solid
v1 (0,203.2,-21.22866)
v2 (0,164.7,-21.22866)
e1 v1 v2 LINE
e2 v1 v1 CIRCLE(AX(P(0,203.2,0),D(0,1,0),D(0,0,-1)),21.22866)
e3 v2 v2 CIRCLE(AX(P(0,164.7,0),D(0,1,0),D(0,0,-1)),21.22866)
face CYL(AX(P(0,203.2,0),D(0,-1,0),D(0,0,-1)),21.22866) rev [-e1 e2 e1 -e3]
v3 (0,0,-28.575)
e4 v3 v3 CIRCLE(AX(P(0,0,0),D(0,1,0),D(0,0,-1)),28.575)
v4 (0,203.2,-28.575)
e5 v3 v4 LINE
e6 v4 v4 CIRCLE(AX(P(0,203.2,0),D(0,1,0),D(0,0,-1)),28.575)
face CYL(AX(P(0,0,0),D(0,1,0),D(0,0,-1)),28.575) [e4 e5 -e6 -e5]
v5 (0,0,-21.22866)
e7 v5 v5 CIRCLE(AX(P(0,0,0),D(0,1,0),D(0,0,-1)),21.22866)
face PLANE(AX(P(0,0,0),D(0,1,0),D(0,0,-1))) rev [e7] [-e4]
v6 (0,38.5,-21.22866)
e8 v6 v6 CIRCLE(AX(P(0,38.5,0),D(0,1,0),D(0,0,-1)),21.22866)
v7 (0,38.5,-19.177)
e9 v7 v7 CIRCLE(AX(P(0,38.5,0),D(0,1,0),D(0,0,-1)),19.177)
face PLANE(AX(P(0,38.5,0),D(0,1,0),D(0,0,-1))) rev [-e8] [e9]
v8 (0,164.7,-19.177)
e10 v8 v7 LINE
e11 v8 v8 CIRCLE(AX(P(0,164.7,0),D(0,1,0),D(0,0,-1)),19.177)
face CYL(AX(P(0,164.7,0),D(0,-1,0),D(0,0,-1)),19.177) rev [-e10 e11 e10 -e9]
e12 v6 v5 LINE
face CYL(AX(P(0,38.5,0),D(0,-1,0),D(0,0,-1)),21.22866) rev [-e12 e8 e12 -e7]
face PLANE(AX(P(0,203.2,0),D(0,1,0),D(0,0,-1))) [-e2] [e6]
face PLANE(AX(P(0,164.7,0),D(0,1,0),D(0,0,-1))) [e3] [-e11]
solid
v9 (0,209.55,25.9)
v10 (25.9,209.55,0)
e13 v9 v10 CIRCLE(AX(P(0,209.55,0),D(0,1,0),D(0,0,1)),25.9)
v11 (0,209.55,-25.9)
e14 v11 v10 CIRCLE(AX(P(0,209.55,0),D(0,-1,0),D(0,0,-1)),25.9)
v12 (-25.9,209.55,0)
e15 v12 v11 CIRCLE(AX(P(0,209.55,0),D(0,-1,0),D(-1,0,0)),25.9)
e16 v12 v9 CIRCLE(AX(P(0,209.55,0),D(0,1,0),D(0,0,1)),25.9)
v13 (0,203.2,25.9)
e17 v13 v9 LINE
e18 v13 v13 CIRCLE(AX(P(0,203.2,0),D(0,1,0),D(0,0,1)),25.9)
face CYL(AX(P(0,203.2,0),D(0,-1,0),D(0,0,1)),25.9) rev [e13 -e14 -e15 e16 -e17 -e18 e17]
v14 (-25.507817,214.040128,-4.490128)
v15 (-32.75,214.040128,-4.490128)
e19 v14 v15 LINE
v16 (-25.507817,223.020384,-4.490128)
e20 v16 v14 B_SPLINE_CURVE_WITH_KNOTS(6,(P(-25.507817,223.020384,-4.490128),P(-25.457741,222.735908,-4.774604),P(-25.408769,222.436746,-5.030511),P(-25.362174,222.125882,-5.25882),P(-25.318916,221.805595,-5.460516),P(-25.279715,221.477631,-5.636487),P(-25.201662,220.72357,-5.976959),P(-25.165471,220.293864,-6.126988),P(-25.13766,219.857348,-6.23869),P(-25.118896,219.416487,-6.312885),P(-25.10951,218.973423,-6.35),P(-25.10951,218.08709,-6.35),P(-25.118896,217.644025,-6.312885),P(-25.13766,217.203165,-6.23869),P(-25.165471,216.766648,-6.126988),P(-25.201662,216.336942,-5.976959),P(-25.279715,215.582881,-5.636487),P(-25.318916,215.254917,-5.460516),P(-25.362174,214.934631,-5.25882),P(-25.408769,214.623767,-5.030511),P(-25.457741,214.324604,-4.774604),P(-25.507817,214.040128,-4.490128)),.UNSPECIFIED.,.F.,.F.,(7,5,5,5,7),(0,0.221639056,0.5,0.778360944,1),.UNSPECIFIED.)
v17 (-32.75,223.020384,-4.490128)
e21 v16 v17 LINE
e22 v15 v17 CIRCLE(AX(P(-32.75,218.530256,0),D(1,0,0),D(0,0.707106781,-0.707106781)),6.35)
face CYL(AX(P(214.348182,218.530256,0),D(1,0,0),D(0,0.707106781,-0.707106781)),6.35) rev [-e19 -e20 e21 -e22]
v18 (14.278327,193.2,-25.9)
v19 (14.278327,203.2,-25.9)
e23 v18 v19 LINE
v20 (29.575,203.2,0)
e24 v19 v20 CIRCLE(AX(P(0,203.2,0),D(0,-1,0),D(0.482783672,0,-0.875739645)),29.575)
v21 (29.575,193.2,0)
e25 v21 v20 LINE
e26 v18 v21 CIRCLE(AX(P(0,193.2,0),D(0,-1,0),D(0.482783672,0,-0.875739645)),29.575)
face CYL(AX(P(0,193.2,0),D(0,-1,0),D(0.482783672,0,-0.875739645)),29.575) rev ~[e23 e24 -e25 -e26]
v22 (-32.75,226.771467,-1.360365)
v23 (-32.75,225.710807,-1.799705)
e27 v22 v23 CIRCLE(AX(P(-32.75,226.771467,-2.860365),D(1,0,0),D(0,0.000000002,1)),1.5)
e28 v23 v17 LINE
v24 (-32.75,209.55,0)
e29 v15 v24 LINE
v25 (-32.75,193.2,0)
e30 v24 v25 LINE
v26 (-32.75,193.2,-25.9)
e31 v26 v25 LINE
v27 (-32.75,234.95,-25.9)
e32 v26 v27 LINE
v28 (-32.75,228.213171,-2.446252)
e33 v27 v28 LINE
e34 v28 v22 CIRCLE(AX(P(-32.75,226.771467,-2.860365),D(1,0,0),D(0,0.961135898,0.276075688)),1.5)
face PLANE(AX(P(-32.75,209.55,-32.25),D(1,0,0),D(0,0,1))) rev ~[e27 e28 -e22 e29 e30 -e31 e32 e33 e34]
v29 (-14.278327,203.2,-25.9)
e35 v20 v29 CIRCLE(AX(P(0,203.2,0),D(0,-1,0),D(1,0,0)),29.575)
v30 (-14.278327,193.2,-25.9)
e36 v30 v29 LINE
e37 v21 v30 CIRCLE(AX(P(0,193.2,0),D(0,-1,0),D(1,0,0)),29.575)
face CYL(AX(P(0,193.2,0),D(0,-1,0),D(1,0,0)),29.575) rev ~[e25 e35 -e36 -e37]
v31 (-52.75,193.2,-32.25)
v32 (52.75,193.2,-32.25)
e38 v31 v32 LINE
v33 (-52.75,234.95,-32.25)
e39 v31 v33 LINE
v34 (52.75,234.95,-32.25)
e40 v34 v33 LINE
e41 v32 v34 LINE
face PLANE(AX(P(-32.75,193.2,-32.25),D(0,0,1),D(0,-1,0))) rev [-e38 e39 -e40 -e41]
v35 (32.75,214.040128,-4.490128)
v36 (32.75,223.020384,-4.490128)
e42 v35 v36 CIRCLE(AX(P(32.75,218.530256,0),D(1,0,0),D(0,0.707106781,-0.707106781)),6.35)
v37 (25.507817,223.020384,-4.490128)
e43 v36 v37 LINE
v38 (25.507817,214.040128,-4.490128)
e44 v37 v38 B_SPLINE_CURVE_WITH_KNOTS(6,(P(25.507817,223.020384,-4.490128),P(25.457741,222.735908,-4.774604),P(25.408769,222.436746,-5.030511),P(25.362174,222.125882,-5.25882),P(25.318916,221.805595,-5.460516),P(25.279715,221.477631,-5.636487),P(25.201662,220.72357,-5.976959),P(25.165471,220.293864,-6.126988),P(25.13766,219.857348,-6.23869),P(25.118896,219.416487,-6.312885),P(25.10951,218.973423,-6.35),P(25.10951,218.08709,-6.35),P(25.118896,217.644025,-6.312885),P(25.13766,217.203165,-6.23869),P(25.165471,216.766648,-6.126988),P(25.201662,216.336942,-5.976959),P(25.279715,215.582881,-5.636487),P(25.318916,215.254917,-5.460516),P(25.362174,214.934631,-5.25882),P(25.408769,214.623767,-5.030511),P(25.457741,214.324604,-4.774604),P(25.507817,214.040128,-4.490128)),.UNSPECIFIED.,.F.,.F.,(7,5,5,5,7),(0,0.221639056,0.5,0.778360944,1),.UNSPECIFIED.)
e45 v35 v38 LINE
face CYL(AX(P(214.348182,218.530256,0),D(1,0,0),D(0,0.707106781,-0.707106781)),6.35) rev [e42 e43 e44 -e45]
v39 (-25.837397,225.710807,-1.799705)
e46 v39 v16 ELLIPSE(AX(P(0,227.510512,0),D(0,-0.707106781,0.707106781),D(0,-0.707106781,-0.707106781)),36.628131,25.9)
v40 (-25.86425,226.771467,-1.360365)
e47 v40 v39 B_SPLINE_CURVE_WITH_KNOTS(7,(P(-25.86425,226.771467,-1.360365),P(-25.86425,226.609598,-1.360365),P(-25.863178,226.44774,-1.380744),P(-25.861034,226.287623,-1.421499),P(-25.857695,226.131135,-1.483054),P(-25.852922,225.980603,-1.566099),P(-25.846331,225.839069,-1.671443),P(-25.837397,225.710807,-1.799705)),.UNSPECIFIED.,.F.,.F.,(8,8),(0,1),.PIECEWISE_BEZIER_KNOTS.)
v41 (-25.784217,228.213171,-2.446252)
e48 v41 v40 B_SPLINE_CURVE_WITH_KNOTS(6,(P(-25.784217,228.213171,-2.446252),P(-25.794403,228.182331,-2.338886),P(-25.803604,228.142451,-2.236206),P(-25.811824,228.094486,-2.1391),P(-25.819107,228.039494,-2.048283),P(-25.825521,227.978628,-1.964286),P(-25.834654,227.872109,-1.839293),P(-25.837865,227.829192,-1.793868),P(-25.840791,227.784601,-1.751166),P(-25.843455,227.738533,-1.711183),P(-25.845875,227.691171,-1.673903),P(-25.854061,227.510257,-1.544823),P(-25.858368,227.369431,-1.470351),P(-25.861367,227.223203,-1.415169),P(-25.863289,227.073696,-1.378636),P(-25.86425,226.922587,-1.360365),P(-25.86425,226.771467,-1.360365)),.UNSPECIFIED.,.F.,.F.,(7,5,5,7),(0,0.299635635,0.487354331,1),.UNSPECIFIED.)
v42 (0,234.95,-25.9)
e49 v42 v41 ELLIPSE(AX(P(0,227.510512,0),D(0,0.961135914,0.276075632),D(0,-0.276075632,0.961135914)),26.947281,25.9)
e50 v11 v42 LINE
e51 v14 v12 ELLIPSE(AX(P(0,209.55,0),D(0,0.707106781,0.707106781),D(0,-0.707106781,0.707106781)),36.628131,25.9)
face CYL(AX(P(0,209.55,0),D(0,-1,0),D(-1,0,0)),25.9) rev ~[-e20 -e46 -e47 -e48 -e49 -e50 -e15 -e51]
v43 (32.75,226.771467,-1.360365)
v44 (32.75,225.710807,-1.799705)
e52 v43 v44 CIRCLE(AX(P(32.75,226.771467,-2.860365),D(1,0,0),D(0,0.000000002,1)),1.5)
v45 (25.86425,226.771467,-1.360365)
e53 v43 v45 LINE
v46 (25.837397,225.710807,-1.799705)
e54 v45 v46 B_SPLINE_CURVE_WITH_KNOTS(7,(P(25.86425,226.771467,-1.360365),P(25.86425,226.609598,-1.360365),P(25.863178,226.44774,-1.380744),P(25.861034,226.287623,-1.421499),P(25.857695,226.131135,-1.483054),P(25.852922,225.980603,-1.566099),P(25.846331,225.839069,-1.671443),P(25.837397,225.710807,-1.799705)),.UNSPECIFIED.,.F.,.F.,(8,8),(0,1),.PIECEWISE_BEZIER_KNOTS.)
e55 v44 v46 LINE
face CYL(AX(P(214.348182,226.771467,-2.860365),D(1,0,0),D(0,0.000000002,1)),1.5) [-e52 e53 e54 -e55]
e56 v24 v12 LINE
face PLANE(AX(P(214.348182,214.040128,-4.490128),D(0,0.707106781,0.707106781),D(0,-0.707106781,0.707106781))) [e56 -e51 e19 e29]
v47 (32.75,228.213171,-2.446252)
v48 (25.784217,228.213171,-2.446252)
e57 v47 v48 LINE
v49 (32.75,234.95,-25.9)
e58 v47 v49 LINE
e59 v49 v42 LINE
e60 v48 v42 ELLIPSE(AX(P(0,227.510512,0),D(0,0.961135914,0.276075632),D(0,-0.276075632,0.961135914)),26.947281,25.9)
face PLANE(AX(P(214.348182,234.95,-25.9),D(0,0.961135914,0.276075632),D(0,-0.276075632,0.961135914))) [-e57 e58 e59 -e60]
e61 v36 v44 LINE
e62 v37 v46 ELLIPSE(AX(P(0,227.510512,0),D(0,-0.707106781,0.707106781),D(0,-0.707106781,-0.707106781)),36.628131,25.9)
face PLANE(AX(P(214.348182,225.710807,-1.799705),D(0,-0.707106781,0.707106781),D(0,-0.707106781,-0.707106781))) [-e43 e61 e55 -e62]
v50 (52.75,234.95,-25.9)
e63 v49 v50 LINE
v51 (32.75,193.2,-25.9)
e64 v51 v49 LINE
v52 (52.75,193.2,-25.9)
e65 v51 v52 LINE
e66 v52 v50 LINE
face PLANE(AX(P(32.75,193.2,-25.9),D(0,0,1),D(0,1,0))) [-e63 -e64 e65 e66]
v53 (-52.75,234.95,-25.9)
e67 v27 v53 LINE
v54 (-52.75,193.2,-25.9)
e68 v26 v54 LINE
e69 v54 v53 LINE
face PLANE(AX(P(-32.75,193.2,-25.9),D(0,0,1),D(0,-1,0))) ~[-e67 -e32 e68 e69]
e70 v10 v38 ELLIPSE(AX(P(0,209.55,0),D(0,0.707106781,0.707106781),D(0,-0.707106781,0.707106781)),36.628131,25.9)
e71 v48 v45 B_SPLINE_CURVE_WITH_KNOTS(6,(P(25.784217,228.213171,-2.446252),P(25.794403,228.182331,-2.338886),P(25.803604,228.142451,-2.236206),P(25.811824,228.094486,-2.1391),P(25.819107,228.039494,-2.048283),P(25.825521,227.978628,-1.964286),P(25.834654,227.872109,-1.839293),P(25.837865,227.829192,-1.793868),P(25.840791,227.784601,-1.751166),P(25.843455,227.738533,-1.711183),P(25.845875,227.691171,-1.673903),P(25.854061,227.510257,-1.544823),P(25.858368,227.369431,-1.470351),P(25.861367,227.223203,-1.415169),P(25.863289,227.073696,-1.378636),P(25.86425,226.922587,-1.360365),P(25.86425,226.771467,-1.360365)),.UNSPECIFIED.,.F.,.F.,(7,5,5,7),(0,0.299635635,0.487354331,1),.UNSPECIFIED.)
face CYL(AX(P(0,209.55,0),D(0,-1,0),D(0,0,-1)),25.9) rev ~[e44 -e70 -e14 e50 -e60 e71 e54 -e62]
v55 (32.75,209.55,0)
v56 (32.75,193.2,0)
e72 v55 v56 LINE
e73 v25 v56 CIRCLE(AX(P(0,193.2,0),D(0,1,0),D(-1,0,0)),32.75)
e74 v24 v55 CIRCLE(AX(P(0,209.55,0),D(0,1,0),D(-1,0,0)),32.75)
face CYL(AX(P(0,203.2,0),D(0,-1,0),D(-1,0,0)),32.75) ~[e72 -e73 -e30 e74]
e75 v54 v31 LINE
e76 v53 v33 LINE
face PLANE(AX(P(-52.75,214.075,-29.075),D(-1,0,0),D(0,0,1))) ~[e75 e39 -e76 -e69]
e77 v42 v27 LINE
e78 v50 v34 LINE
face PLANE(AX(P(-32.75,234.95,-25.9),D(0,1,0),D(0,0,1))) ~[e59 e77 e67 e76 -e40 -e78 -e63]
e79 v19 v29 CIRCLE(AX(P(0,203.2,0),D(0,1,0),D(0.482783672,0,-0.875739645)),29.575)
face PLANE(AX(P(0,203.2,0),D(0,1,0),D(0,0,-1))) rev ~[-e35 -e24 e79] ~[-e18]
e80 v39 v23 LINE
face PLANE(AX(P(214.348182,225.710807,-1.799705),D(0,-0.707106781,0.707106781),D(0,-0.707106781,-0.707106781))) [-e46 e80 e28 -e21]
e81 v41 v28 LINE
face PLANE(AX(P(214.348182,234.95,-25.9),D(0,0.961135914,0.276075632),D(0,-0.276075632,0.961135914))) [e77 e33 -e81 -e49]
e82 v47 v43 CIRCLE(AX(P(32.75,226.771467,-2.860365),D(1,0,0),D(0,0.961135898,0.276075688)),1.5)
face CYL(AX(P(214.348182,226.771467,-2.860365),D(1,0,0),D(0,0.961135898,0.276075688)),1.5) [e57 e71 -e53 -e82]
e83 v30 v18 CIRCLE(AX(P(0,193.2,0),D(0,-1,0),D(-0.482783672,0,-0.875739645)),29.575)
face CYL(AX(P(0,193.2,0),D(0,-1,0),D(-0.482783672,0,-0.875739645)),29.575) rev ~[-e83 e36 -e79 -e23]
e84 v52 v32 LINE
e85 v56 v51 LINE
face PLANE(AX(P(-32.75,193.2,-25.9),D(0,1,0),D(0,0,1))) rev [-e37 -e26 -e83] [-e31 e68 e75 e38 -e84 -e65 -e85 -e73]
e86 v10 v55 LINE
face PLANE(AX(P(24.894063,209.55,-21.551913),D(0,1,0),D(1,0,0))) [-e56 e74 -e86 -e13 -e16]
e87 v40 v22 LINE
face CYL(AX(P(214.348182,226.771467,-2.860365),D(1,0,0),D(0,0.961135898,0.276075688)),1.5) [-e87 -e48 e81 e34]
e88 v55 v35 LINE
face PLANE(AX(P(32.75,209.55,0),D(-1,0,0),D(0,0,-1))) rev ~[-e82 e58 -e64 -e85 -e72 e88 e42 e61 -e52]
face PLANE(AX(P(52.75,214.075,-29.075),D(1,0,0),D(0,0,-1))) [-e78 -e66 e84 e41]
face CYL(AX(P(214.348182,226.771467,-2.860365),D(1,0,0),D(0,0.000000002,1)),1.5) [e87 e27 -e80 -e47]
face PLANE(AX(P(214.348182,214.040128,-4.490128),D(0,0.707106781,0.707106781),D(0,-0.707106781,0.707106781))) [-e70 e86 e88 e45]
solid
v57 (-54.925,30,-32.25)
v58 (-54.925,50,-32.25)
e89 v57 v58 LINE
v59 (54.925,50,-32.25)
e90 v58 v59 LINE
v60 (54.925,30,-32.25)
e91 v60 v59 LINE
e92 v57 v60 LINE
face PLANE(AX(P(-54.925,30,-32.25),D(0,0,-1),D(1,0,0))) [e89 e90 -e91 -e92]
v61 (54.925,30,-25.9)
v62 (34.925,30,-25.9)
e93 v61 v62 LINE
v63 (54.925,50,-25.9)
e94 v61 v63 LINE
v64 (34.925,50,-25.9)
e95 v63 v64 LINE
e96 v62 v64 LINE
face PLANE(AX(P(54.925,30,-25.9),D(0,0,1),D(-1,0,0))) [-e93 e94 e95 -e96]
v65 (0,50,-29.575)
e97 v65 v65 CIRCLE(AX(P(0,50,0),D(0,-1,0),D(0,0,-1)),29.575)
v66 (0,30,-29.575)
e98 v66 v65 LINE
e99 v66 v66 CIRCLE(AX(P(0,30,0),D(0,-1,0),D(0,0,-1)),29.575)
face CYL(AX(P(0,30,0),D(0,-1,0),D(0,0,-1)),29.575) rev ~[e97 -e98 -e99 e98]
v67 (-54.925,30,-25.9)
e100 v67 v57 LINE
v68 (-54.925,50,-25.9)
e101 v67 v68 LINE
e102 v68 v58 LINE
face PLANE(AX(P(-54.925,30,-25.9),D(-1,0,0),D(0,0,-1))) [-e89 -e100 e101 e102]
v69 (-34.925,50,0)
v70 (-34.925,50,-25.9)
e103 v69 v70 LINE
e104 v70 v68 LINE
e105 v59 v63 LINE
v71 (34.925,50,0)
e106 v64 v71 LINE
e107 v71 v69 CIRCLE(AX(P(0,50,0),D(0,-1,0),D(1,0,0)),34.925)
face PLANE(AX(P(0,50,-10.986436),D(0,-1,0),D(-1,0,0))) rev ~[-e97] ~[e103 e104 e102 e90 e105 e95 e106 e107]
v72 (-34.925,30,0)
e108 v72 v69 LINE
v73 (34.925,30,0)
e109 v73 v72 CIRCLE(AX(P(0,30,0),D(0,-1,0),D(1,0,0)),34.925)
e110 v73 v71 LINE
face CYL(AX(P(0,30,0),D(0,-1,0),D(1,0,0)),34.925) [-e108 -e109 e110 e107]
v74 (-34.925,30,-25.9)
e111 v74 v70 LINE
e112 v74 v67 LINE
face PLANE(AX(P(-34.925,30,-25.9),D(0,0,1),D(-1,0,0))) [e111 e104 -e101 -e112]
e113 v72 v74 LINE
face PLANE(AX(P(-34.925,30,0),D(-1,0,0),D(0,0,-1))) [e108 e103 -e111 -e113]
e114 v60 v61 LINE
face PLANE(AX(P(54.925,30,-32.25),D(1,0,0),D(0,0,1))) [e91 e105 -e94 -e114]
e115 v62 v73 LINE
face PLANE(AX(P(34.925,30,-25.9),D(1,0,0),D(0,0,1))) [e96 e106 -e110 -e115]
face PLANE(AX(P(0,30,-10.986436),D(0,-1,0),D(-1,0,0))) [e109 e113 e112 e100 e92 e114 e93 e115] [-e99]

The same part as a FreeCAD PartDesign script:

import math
import FreeCAD as App
import Part
import Sketcher
from FreeCAD import Vector
Q = App.Units.Quantity

doc = App.newDocument("Part")
body = doc.addObject("PartDesign::Body", "Body")

sketch1 = doc.addObject("Sketcher::SketchObject", "Sketch")
body.addObject(sketch1)
sketch1.AttachmentSupport = (doc.XY_Plane, [""])
sketch1.MapMode = "FlatFace"
sketch1.addGeometry(Part.LineSegment(Vector(-28.6, 203.2, 0), Vector(-28.6, 0, 0)), False)
sketch1.addGeometry(Part.LineSegment(Vector(-28.6, 0, 0), Vector(-21.2, 0, 0)), False)
sketch1.addGeometry(Part.LineSegment(Vector(-21.2, 0, 0), Vector(-21.2, 38.5, 0)), False)
sketch1.addGeometry(Part.LineSegment(Vector(-21.2, 38.5, 0), Vector(-19.2, 38.5, 0)), False)
sketch1.addGeometry(Part.LineSegment(Vector(-19.2, 38.5, 0), Vector(-19.2, 164.7, 0)), False)
sketch1.addGeometry(Part.LineSegment(Vector(-19.2, 164.7, 0), Vector(-21.2, 164.7, 0)), False)
sketch1.addGeometry(Part.LineSegment(Vector(-21.2, 164.7, 0), Vector(-21.2, 203.2, 0)), False)
sketch1.addGeometry(Part.LineSegment(Vector(-21.2, 203.2, 0), Vector(-28.6, 203.2, 0)), False)
sketch1.addConstraint(Sketcher.Constraint("Coincident", 0, 2, 1, 1))
sketch1.addConstraint(Sketcher.Constraint("Coincident", 1, 2, 2, 1))
sketch1.addConstraint(Sketcher.Constraint("Coincident", 2, 2, 3, 1))
sketch1.addConstraint(Sketcher.Constraint("Coincident", 3, 2, 4, 1))
sketch1.addConstraint(Sketcher.Constraint("Coincident", 4, 2, 5, 1))
sketch1.addConstraint(Sketcher.Constraint("Coincident", 5, 2, 6, 1))
sketch1.addConstraint(Sketcher.Constraint("Coincident", 6, 2, 7, 1))
sketch1.addConstraint(Sketcher.Constraint("Coincident", 7, 2, 0, 1))
sketch1.addConstraint(Sketcher.Constraint("Vertical", 0))
sketch1.addConstraint(Sketcher.Constraint("Horizontal", 1))
sketch1.addConstraint(Sketcher.Constraint("Vertical", 2))
sketch1.addConstraint(Sketcher.Constraint("Horizontal", 3))
sketch1.addConstraint(Sketcher.Constraint("Vertical", 4))
sketch1.addConstraint(Sketcher.Constraint("Horizontal", 5))
sketch1.addConstraint(Sketcher.Constraint("Vertical", 6))
sketch1.addConstraint(Sketcher.Constraint("Horizontal", 7))
sketch1.addConstraint(Sketcher.Constraint("PointOnObject", 0, 2, -1))
sketch1.addConstraint(Sketcher.Constraint("Vertical", 2, 2, 5, 2))
sketch1.addConstraint(Sketcher.Constraint("Equal", 2, 6))
sketch1.addConstraint(Sketcher.Constraint("DistanceY", 0, 2, 0, 1, Q("203.2 mm")))
sketch1.addConstraint(Sketcher.Constraint("DistanceY", 2, 1, 2, 2, Q("38.5 mm")))
sketch1.addConstraint(Sketcher.Constraint("DistanceX", 0, 2, -1, 1, Q("28.575 mm")))
sketch1.addConstraint(Sketcher.Constraint("DistanceX", 3, 2, -1, 1, Q("19.177 mm")))
sketch1.addConstraint(Sketcher.Constraint("DistanceX", 1, 1, 1, 2, Q("7.34634 mm")))
revolution = doc.addObject("PartDesign::Revolution", "Revolution")
body.addObject(revolution)
revolution.Profile = sketch1
revolution.ReferenceAxis = (sketch1, ["V_Axis"])
revolution.Angle = 360
body2 = doc.addObject("PartDesign::Body", "Body001")

sketch2 = doc.addObject("Sketcher::SketchObject", "Sketch001")
body2.addObject(sketch2)
sketch2.AttachmentSupport = (doc.getObject("XZ_Plane001"), [""])
sketch2.MapMode = "FlatFace"
sketch2.AttachmentOffset = App.Placement(Vector(0, 0, -193.2), App.Rotation())
sketch2.addGeometry(Part.LineSegment(Vector(-33, -32, 0), Vector(-33, 0, 0)), False)
sketch2.addGeometry(Part.ArcOfCircle(Part.Circle(Vector(0, 0, 0), Vector(0, 0, 1), 33), math.radians(0), math.radians(180)), False)
sketch2.addGeometry(Part.LineSegment(Vector(33, 0, 0), Vector(33, -32, 0)), False)
sketch2.addGeometry(Part.LineSegment(Vector(33, -32, 0), Vector(-33, -32, 0)), False)
sketch2.addGeometry(Part.ArcOfCircle(Part.Circle(Vector(0, 0, 0), Vector(0, 0, 1), 30), math.radians(-61), math.radians(0)), False)
sketch2.addGeometry(Part.ArcOfCircle(Part.Circle(Vector(0, 0, 0), Vector(0, 0, 1), 30), math.radians(0), math.radians(241)), False)
sketch2.addGeometry(Part.ArcOfCircle(Part.Circle(Vector(0, 0, 0), Vector(0, 0, 1), 30), math.radians(-119), math.radians(-61)), False)
sketch2.addConstraint(Sketcher.Constraint("Tangent", 0, 2, 1, 2))
sketch2.addConstraint(Sketcher.Constraint("Tangent", 1, 1, 2, 1))
sketch2.addConstraint(Sketcher.Constraint("Coincident", 2, 2, 3, 1))
sketch2.addConstraint(Sketcher.Constraint("Coincident", 3, 2, 0, 1))
sketch2.addConstraint(Sketcher.Constraint("Tangent", 4, 2, 5, 1))
sketch2.addConstraint(Sketcher.Constraint("Tangent", 5, 2, 6, 1))
sketch2.addConstraint(Sketcher.Constraint("Tangent", 6, 2, 4, 1))
sketch2.addConstraint(Sketcher.Constraint("Vertical", 0))
sketch2.addConstraint(Sketcher.Constraint("Vertical", 2))
sketch2.addConstraint(Sketcher.Constraint("Horizontal", 3))
sketch2.addConstraint(Sketcher.Constraint("Coincident", 1, 3, -1, 1))
sketch2.addConstraint(Sketcher.Constraint("Coincident", 4, 3, -1, 1))
sketch2.addConstraint(Sketcher.Constraint("PointOnObject", 4, 2, -1))
sketch2.addConstraint(Sketcher.Constraint("Horizontal", 5, 2, 6, 2))
sketch2.addConstraint(Sketcher.Constraint("Radius", 1, Q("32.75 mm")))
sketch2.addConstraint(Sketcher.Constraint("Radius", 4, Q("29.575 mm")))
sketch2.addConstraint(Sketcher.Constraint("DistanceY", 0, 1, 0, 2, Q("32.25 mm")))
sketch2.addConstraint(Sketcher.Constraint("DistanceY", 5, 2, -1, 1, Q("25.9 mm")))
pad1 = doc.addObject("PartDesign::Pad", "Pad")
body2.addObject(pad1)
pad1.Profile = sketch2
pad1.Length = 10
pad1.Reversed = True

sketch3 = doc.addObject("Sketcher::SketchObject", "Sketch002")
body2.addObject(sketch3)
sketch3.AttachmentSupport = (doc.getObject("XZ_Plane001"), [""])
sketch3.MapMode = "FlatFace"
sketch3.AttachmentOffset = App.Placement(Vector(0, 0, -203.2), App.Rotation())
sketch3.addGeometry(Part.LineSegment(Vector(33, 0, 0), Vector(33, -32, 0)), False)
sketch3.addGeometry(Part.LineSegment(Vector(33, -32, 0), Vector(-33, -32, 0)), False)
sketch3.addGeometry(Part.LineSegment(Vector(-33, -32, 0), Vector(-33, 0, 0)), False)
sketch3.addGeometry(Part.ArcOfCircle(Part.Circle(Vector(0, 0, 0), Vector(0, 0, 1), 33), math.radians(0), math.radians(180)), False)
sketch3.addGeometry(Part.Circle(Vector(0, 0, 0), Vector(0, 0, 1), 26), False)
sketch3.addConstraint(Sketcher.Constraint("Coincident", 0, 2, 1, 1))
sketch3.addConstraint(Sketcher.Constraint("Coincident", 1, 2, 2, 1))
sketch3.addConstraint(Sketcher.Constraint("Tangent", 2, 2, 3, 2))
sketch3.addConstraint(Sketcher.Constraint("Tangent", 3, 1, 0, 1))
sketch3.addConstraint(Sketcher.Constraint("Vertical", 0))
sketch3.addConstraint(Sketcher.Constraint("Horizontal", 1))
sketch3.addConstraint(Sketcher.Constraint("Vertical", 2))
sketch3.addConstraint(Sketcher.Constraint("Coincident", 3, 3, -1, 1))
sketch3.addConstraint(Sketcher.Constraint("Coincident", 4, 3, -1, 1))
sketch3.addConstraint(Sketcher.Constraint("Diameter", 4, Q("51.8 mm")))
sketch3.addConstraint(Sketcher.Constraint("Radius", 3, Q("32.75 mm")))
sketch3.addConstraint(Sketcher.Constraint("DistanceY", 0, 2, 0, 1, Q("32.25 mm")))
pad2 = doc.addObject("PartDesign::Pad", "Pad001")
body2.addObject(pad2)
pad2.Profile = sketch3
pad2.Length = 6.35
pad2.Reversed = True

sketch4 = doc.addObject("Sketcher::SketchObject", "Sketch003")
body2.addObject(sketch4)
sketch4.AttachmentSupport = (doc.getObject("XZ_Plane001"), [""])
sketch4.MapMode = "FlatFace"
sketch4.AttachmentOffset = App.Placement(Vector(0, 0, -209.55), App.Rotation())
sketch4.addGeometry(Part.LineSegment(Vector(33, -32, 0), Vector(-33, -32, 0)), False)
sketch4.addGeometry(Part.LineSegment(Vector(-33, -32, 0), Vector(-33, 0, 0)), False)
sketch4.addGeometry(Part.LineSegment(Vector(-33, 0, 0), Vector(-26, 0, 0)), False)
sketch4.addGeometry(Part.ArcOfCircle(Part.Circle(Vector(0, 0, 0), Vector(0, 0, 1), 26), math.radians(180), math.radians(270)), False)
sketch4.addGeometry(Part.ArcOfCircle(Part.Circle(Vector(0, 0, 0), Vector(0, 0, 1), 26), math.radians(-90), math.radians(0)), False)
sketch4.addGeometry(Part.LineSegment(Vector(26, 0, 0), Vector(33, 0, 0)), False)
sketch4.addGeometry(Part.LineSegment(Vector(33, 0, 0), Vector(33, -32, 0)), False)
sketch4.addConstraint(Sketcher.Constraint("Coincident", 0, 2, 1, 1))
sketch4.addConstraint(Sketcher.Constraint("Coincident", 1, 2, 2, 1))
sketch4.addConstraint(Sketcher.Constraint("Coincident", 2, 2, 3, 1))
sketch4.addConstraint(Sketcher.Constraint("Tangent", 3, 2, 4, 1))
sketch4.addConstraint(Sketcher.Constraint("Coincident", 4, 2, 5, 1))
sketch4.addConstraint(Sketcher.Constraint("Coincident", 5, 2, 6, 1))
sketch4.addConstraint(Sketcher.Constraint("Coincident", 6, 2, 0, 1))
sketch4.addConstraint(Sketcher.Constraint("Horizontal", 0))
sketch4.addConstraint(Sketcher.Constraint("Vertical", 1))
sketch4.addConstraint(Sketcher.Constraint("Horizontal", 2))
sketch4.addConstraint(Sketcher.Constraint("Horizontal", 5))
sketch4.addConstraint(Sketcher.Constraint("Vertical", 6))
sketch4.addConstraint(Sketcher.Constraint("Coincident", 3, 3, -1, 1))
sketch4.addConstraint(Sketcher.Constraint("Equal", 3, 4))
sketch4.addConstraint(Sketcher.Constraint("Symmetric", 1, 2, 5, 2, -1, 1))
sketch4.addConstraint(Sketcher.Constraint("PointOnObject", 1, 2, -1))
sketch4.addConstraint(Sketcher.Constraint("PointOnObject", 3, 2, -2))
sketch4.addConstraint(Sketcher.Constraint("Radius", 3, Q("25.9 mm")))
sketch4.addConstraint(Sketcher.Constraint("DistanceX", 0, 2, 0, 1, Q("65.5 mm")))
sketch4.addConstraint(Sketcher.Constraint("DistanceY", 1, 1, 1, 2, Q("32.25 mm")))
pad3 = doc.addObject("PartDesign::Pad", "Pad002")
body2.addObject(pad3)
pad3.Profile = sketch4
pad3.Length = 25.4
pad3.Reversed = True

sketch5 = doc.addObject("Sketcher::SketchObject", "Sketch004")
body2.addObject(sketch5)
sketch5.AttachmentSupport = (doc.getObject("YZ_Plane001"), [""])
sketch5.MapMode = "FlatFace"
sketch5.AttachmentOffset = App.Placement(Vector(0, 0, -32.75), App.Rotation())
sketch5.addGeometry(Part.LineSegment(Vector(214, -4.5, 0), Vector(209.6, 0, 0)), False)
sketch5.addGeometry(Part.LineSegment(Vector(209.6, 0, 0), Vector(212.2, 0, 0)), False)
sketch5.addGeometry(Part.ArcOfCircle(Part.Circle(Vector(218.5, 0, 0), Vector(0, 0, 1), 6.3), math.radians(90), math.radians(180)), False)
sketch5.addGeometry(Part.ArcOfCircle(Part.Circle(Vector(218.5, 0, 0), Vector(0, 0, 1), 6.3), math.radians(0), math.radians(90)), False)
sketch5.addGeometry(Part.LineSegment(Vector(224.9, 0, 0), Vector(234.9, 0, 0)), False)
sketch5.addGeometry(Part.LineSegment(Vector(234.9, 0, 0), Vector(234.9, -25.9, 0)), False)
sketch5.addGeometry(Part.LineSegment(Vector(234.9, -25.9, 0), Vector(228.2, -2.4, 0)), False)
sketch5.addGeometry(Part.ArcOfCircle(Part.Circle(Vector(226.8, -2.9, 0), Vector(0, 0, 1), 1.5), math.radians(16), math.radians(90)), False)
sketch5.addGeometry(Part.ArcOfCircle(Part.Circle(Vector(226.8, -2.9, 0), Vector(0, 0, 1), 1.5), math.radians(90), math.radians(135)), False)
sketch5.addGeometry(Part.LineSegment(Vector(225.7, -1.8, 0), Vector(223, -4.5, 0)), False)
sketch5.addGeometry(Part.ArcOfCircle(Part.Circle(Vector(218.5, 0, 0), Vector(0, 0, 1), 6.4), math.radians(-135), math.radians(-45)), False)
sketch5.addConstraint(Sketcher.Constraint("Coincident", 0, 2, 1, 1))
sketch5.addConstraint(Sketcher.Constraint("Coincident", 1, 2, 2, 2))
sketch5.addConstraint(Sketcher.Constraint("Tangent", 2, 1, 3, 2))
sketch5.addConstraint(Sketcher.Constraint("Coincident", 3, 1, 4, 1))
sketch5.addConstraint(Sketcher.Constraint("Coincident", 4, 2, 5, 1))
sketch5.addConstraint(Sketcher.Constraint("Coincident", 5, 2, 6, 1))
sketch5.addConstraint(Sketcher.Constraint("Tangent", 6, 2, 7, 1))
sketch5.addConstraint(Sketcher.Constraint("Tangent", 7, 2, 8, 1))
sketch5.addConstraint(Sketcher.Constraint("Tangent", 8, 2, 9, 1))
sketch5.addConstraint(Sketcher.Constraint("Tangent", 9, 2, 10, 2))
sketch5.addConstraint(Sketcher.Constraint("Tangent", 10, 1, 0, 1))
sketch5.addConstraint(Sketcher.Constraint("Horizontal", 1))
sketch5.addConstraint(Sketcher.Constraint("Horizontal", 4))
sketch5.addConstraint(Sketcher.Constraint("Vertical", 5))
sketch5.addConstraint(Sketcher.Constraint("Coincident", 10, 3, 2, 3))
sketch5.addConstraint(Sketcher.Constraint("Equal", 2, 3))
sketch5.addConstraint(Sketcher.Constraint("Equal", 7, 8))
sketch5.addConstraint(Sketcher.Constraint("Equal", 3, 10))
sketch5.addConstraint(Sketcher.Constraint("PointOnObject", 2, 3, -1))
sketch5.addConstraint(Sketcher.Constraint("PointOnObject", 0, 2, -1))
sketch5.addConstraint(Sketcher.Constraint("PointOnObject", 3, 1, -1))
sketch5.addConstraint(Sketcher.Constraint("Perpendicular", 0, 9))
sketch5.addConstraint(Sketcher.Constraint("Horizontal", 9, 2, 10, 1))
sketch5.addConstraint(Sketcher.Constraint("Vertical", 10, 3, 2, 1))
sketch5.addConstraint(Sketcher.Constraint("Vertical", 8, 3, 7, 2))
sketch5.addConstraint(Sketcher.Constraint("Radius", 7, Q("1.5 mm")))
sketch5.addConstraint(Sketcher.Constraint("Radius", 2, Q("6.35 mm")))
sketch5.addConstraint(Sketcher.Constraint("DistanceY", 5, 2, 5, 1, Q("25.9 mm")))
sketch5.addConstraint(Sketcher.Constraint("DistanceX", -1, 1, 0, 2, Q("209.55 mm")))
sketch5.addConstraint(Sketcher.Constraint("DistanceX", -1, 1, 4, 2, Q("234.95 mm")))
sketch5.addConstraint(Sketcher.Constraint("DistanceX", -1, 1, 6, 2, Q("228.213171 mm")))
pocket1 = doc.addObject("PartDesign::Pocket", "Pocket")
body2.addObject(pocket1)
pocket1.Profile = sketch5
pocket1.Type = "ThroughAll"
pocket1.Midplane = True

sketch6 = doc.addObject("Sketcher::SketchObject", "Sketch005")
body2.addObject(sketch6)
sketch6.AttachmentSupport = (doc.getObject("YZ_Plane001"), [""])
sketch6.MapMode = "FlatFace"
sketch6.AttachmentOffset = App.Placement(Vector(0, 0, 32.75), App.Rotation())
sketch6.addGeometry(Part.LineSegment(Vector(235, -26, 0), Vector(193, -26, 0)), False)
sketch6.addGeometry(Part.LineSegment(Vector(193, -26, 0), Vector(193, -32, 0)), False)
sketch6.addGeometry(Part.LineSegment(Vector(193, -32, 0), Vector(235, -32, 0)), False)
sketch6.addGeometry(Part.LineSegment(Vector(235, -32, 0), Vector(235, -26, 0)), False)
sketch6.addConstraint(Sketcher.Constraint("Coincident", 0, 2, 1, 1))
sketch6.addConstraint(Sketcher.Constraint("Coincident", 1, 2, 2, 1))
sketch6.addConstraint(Sketcher.Constraint("Coincident", 2, 2, 3, 1))
sketch6.addConstraint(Sketcher.Constraint("Coincident", 3, 2, 0, 1))
sketch6.addConstraint(Sketcher.Constraint("Horizontal", 0))
sketch6.addConstraint(Sketcher.Constraint("Vertical", 1))
sketch6.addConstraint(Sketcher.Constraint("Horizontal", 2))
sketch6.addConstraint(Sketcher.Constraint("Vertical", 3))
sketch6.addConstraint(Sketcher.Constraint("DistanceX", 0, 2, 0, 1, Q("41.75 mm")))
sketch6.addConstraint(Sketcher.Constraint("DistanceY", 1, 2, 1, 1, Q("6.35 mm")))
sketch6.addConstraint(Sketcher.Constraint("DistanceX", -1, 1, 0, 2, Q("193.2 mm")))
sketch6.addConstraint(Sketcher.Constraint("DistanceY", 0, 2, -1, 1, Q("25.9 mm")))
pad4 = doc.addObject("PartDesign::Pad", "Pad003")
body2.addObject(pad4)
pad4.Profile = sketch6
pad4.Length = 20
doc.recompute()

mirrored = doc.addObject("PartDesign::Mirrored", "Mirrored")
body2.addObject(mirrored)
mirrored.Originals = [pad4]
mirrored.MirrorPlane = (doc.getObject("YZ_Plane001"), [""])
body2.Tip = mirrored
body3 = doc.addObject("PartDesign::Body", "Body002")

sketch7 = doc.addObject("Sketcher::SketchObject", "Sketch006")
body3.addObject(sketch7)
sketch7.AttachmentSupport = (doc.getObject("XZ_Plane002"), [""])
sketch7.MapMode = "FlatFace"
sketch7.AttachmentOffset = App.Placement(Vector(0, 0, -30), App.Rotation())
sketch7.addGeometry(Part.ArcOfCircle(Part.Circle(Vector(0, 0, 0), Vector(0, 0, 1), 35), math.radians(0), math.radians(180)), False)
sketch7.addGeometry(Part.LineSegment(Vector(-35, 0, 0), Vector(-35, -26, 0)), False)
sketch7.addGeometry(Part.LineSegment(Vector(-35, -26, 0), Vector(-55, -26, 0)), False)
sketch7.addGeometry(Part.LineSegment(Vector(-55, -26, 0), Vector(-55, -32, 0)), False)
sketch7.addGeometry(Part.LineSegment(Vector(-55, -32, 0), Vector(55, -32, 0)), False)
sketch7.addGeometry(Part.LineSegment(Vector(55, -32, 0), Vector(55, -26, 0)), False)
sketch7.addGeometry(Part.LineSegment(Vector(55, -26, 0), Vector(35, -26, 0)), False)
sketch7.addGeometry(Part.LineSegment(Vector(35, -26, 0), Vector(35, 0, 0)), False)
sketch7.addGeometry(Part.Circle(Vector(0, 0, 0), Vector(0, 0, 1), 30), False)
sketch7.addConstraint(Sketcher.Constraint("Tangent", 0, 2, 1, 1))
sketch7.addConstraint(Sketcher.Constraint("Coincident", 1, 2, 2, 1))
sketch7.addConstraint(Sketcher.Constraint("Coincident", 2, 2, 3, 1))
sketch7.addConstraint(Sketcher.Constraint("Coincident", 3, 2, 4, 1))
sketch7.addConstraint(Sketcher.Constraint("Coincident", 4, 2, 5, 1))
sketch7.addConstraint(Sketcher.Constraint("Coincident", 5, 2, 6, 1))
sketch7.addConstraint(Sketcher.Constraint("Coincident", 6, 2, 7, 1))
sketch7.addConstraint(Sketcher.Constraint("Tangent", 7, 2, 0, 1))
sketch7.addConstraint(Sketcher.Constraint("Vertical", 1))
sketch7.addConstraint(Sketcher.Constraint("Horizontal", 2))
sketch7.addConstraint(Sketcher.Constraint("Vertical", 3))
sketch7.addConstraint(Sketcher.Constraint("Horizontal", 4))
sketch7.addConstraint(Sketcher.Constraint("Vertical", 5))
sketch7.addConstraint(Sketcher.Constraint("Horizontal", 6))
sketch7.addConstraint(Sketcher.Constraint("Vertical", 7))
sketch7.addConstraint(Sketcher.Constraint("Coincident", 0, 3, -1, 1))
sketch7.addConstraint(Sketcher.Constraint("Coincident", 8, 3, -1, 1))
sketch7.addConstraint(Sketcher.Constraint("Symmetric", 2, 2, 5, 2, -2))
sketch7.addConstraint(Sketcher.Constraint("Diameter", 8, Q("59.15 mm")))
sketch7.addConstraint(Sketcher.Constraint("DistanceX", 2, 2, 2, 1, Q("20 mm")))
sketch7.addConstraint(Sketcher.Constraint("DistanceY", 1, 2, 1, 1, Q("25.9 mm")))
sketch7.addConstraint(Sketcher.Constraint("Radius", 0, Q("34.925 mm")))
sketch7.addConstraint(Sketcher.Constraint("DistanceY", 3, 2, 3, 1, Q("6.35 mm")))
pad5 = doc.addObject("PartDesign::Pad", "Pad004")
body3.addObject(pad5)
pad5.Profile = sketch7
pad5.Length = 20
pad5.Reversed = True

doc.recompute()
